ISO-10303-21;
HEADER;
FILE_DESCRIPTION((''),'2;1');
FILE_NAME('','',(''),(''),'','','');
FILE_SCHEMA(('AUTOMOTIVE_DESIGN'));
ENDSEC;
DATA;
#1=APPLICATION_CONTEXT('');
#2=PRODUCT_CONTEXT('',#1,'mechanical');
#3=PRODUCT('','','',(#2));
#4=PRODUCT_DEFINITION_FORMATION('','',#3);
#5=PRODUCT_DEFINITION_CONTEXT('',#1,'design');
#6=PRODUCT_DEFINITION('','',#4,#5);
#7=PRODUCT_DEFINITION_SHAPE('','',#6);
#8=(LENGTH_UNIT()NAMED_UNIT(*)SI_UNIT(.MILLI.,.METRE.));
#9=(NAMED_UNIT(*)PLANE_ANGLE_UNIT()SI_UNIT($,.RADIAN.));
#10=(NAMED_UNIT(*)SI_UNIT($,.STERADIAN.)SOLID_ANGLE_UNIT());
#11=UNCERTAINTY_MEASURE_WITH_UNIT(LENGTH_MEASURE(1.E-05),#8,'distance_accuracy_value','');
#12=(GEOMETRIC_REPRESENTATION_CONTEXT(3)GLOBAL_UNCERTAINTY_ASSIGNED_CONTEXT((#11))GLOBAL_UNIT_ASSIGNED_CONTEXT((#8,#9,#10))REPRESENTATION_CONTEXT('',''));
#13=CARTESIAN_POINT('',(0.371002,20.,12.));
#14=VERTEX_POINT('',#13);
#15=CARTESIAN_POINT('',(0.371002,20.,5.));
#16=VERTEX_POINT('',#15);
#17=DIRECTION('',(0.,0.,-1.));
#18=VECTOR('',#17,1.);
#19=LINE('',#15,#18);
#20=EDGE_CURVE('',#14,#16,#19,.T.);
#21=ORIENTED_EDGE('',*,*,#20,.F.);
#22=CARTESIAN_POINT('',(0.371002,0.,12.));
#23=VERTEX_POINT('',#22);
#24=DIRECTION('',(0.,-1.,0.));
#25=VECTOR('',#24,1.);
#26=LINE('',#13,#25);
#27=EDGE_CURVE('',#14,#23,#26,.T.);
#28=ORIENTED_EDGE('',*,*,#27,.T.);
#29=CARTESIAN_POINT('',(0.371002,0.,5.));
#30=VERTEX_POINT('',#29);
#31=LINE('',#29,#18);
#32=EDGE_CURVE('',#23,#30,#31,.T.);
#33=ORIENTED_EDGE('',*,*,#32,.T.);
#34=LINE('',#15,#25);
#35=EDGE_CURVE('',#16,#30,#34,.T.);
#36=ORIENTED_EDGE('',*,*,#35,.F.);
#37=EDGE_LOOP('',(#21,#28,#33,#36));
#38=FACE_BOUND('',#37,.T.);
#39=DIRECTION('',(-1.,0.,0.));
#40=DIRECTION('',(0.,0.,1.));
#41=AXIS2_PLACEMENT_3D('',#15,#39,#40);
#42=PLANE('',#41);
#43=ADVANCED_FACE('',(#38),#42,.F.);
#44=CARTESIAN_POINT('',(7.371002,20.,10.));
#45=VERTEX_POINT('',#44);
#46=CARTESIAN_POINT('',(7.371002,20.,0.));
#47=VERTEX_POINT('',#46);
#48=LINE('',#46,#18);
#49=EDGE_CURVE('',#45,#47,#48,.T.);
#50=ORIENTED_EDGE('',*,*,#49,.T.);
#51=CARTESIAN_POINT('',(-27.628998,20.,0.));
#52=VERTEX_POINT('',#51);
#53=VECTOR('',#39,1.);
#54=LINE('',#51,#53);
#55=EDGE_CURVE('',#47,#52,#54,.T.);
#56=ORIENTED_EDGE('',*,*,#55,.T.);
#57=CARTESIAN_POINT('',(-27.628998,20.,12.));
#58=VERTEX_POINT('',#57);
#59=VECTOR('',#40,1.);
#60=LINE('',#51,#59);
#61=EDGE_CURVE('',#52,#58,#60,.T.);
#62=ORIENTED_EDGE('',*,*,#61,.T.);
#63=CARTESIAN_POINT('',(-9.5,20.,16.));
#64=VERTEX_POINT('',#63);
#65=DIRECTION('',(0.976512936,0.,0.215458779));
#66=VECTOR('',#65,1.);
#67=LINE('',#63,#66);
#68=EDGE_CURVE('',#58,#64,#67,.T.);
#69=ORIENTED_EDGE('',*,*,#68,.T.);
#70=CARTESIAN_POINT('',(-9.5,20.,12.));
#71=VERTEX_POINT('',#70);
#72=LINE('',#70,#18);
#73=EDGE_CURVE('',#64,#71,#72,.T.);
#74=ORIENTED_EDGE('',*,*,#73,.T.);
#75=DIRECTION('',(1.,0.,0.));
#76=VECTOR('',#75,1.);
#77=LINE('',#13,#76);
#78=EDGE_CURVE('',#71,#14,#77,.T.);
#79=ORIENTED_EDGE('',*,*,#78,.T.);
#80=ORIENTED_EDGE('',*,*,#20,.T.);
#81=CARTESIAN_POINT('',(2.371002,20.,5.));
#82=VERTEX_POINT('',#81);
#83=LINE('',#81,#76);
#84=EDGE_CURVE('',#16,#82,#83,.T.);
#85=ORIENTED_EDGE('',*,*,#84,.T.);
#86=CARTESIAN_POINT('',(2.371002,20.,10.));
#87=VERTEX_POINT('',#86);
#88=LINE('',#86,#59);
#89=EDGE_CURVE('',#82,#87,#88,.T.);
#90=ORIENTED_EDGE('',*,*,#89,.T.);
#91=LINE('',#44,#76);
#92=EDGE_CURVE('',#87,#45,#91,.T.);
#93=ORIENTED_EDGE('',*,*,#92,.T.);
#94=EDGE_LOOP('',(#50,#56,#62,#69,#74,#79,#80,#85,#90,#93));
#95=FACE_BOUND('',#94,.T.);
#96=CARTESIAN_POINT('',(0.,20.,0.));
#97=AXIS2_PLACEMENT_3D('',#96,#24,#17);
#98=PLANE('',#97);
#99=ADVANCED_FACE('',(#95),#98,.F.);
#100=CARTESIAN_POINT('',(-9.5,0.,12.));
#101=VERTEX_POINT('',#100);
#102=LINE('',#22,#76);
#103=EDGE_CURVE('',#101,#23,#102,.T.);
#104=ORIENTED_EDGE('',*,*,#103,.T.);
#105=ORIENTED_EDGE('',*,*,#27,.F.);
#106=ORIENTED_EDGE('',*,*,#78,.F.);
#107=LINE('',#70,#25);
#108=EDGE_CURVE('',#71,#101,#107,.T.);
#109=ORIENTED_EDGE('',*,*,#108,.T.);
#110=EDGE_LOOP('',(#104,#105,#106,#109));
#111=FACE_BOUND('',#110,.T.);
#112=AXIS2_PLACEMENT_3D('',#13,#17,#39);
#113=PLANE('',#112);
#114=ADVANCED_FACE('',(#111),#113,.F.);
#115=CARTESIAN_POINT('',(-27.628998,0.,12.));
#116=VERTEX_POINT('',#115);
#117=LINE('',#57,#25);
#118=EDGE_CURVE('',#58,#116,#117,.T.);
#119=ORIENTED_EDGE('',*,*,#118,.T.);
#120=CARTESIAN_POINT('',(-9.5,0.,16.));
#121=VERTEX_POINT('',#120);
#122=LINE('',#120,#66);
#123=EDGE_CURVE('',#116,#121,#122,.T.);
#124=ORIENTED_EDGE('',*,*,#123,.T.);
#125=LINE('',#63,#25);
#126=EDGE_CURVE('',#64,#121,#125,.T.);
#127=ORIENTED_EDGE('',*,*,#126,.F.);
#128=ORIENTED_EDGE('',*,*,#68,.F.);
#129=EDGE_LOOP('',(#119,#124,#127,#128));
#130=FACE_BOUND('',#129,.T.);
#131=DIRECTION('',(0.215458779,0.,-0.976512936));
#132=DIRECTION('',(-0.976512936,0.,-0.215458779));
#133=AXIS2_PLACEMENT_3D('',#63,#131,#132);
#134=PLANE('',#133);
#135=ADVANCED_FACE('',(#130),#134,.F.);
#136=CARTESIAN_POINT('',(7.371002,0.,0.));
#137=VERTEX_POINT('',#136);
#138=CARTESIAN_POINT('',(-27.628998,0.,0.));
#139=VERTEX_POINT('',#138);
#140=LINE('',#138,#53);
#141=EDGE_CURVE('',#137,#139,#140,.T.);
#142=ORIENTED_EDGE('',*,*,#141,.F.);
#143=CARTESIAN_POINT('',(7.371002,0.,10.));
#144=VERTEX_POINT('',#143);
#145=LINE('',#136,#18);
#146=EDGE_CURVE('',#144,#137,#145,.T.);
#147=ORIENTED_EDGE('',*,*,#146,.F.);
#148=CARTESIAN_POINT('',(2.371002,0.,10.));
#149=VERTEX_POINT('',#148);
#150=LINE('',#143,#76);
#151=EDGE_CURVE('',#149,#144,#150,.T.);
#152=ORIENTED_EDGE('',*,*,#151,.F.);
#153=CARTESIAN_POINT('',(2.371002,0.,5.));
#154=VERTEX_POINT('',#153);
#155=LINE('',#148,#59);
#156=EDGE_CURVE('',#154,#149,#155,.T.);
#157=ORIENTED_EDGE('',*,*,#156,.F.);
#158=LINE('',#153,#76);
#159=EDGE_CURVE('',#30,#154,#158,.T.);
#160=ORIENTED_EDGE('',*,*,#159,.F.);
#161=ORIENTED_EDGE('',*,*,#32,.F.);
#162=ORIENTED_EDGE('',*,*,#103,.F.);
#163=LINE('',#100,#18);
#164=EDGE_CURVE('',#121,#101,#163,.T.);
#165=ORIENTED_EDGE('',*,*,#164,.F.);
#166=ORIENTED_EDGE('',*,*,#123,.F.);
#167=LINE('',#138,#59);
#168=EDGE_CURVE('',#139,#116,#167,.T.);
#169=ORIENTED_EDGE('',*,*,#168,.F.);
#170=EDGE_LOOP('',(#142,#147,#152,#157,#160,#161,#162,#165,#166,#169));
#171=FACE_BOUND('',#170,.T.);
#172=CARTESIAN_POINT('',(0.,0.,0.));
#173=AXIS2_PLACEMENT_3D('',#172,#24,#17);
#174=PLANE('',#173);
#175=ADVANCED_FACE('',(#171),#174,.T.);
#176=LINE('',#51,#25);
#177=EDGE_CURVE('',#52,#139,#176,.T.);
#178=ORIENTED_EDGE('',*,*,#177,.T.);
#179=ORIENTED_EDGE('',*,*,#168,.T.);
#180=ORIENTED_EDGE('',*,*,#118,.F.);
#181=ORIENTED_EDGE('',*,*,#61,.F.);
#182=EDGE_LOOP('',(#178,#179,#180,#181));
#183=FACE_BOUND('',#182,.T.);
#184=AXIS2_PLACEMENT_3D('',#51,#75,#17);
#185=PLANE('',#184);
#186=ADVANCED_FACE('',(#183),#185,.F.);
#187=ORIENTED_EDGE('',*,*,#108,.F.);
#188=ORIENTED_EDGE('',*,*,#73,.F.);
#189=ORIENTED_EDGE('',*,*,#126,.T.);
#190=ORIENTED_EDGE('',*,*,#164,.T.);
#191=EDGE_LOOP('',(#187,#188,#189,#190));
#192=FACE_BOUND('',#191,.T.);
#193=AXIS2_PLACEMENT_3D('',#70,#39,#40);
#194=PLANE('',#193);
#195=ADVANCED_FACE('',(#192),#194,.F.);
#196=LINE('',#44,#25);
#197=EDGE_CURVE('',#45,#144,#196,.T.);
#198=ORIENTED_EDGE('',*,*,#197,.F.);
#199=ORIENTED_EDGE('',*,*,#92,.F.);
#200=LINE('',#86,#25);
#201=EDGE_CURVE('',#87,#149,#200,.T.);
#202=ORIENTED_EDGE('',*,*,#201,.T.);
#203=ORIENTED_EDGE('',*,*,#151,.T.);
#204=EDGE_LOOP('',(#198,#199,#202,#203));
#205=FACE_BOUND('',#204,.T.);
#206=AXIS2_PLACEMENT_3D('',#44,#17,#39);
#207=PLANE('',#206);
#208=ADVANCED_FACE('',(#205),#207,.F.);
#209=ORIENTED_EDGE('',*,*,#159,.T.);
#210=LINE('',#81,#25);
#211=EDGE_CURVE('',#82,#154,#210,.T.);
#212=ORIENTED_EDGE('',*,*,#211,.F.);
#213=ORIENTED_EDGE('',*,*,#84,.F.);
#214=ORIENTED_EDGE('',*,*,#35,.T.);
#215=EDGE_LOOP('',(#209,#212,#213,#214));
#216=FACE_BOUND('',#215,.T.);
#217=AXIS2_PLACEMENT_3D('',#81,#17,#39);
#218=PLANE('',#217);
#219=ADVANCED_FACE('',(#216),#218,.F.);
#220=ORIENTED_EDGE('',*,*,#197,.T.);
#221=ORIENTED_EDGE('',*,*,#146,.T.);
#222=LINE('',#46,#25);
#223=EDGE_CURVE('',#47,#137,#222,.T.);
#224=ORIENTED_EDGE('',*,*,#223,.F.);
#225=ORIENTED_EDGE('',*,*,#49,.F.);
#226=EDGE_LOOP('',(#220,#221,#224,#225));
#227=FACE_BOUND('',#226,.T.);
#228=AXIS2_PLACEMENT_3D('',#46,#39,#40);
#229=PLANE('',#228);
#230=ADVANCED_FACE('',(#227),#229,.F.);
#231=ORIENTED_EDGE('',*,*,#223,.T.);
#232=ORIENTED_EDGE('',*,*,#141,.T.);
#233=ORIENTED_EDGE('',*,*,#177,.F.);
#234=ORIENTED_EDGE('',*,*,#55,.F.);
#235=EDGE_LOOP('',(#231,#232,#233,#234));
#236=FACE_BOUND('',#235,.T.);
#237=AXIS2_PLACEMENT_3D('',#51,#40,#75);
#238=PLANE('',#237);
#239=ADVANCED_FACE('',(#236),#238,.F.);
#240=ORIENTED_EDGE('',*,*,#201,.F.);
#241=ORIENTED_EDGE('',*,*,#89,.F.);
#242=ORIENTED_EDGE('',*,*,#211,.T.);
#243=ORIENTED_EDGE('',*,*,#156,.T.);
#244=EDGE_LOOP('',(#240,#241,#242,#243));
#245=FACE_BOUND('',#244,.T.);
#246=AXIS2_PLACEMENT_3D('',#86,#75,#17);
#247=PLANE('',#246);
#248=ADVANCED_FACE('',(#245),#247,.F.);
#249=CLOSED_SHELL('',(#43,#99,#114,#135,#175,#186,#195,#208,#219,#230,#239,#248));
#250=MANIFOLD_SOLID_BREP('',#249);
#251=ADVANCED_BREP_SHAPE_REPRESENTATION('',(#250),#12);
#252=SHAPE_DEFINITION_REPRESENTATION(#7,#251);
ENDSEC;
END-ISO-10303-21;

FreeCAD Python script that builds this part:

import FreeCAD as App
import Part
import Sketcher
from FreeCAD import Vector


def add_polygon(sketch, points):
    """Adds a closed chain of lines whose ends are joined by coincident constraints."""
    first, n = sketch.GeometryCount, len(points)
    for a, b in zip(points, points[1:] + points[:1]):
        sketch.addGeometry(Part.LineSegment(App.Vector(*a, 0), App.Vector(*b, 0)), False)
    for i in range(n):
        sketch.addConstraint(Sketcher.Constraint("Coincident", first + i, 2, first + (i + 1) % n, 1))

doc = App.newDocument("Part")
body = doc.addObject("PartDesign::Body", "Body")

sketch1 = body.newObject("Sketcher::SketchObject", "Sketch")
sketch1.AttachmentSupport = (doc.getObject("XZ_Plane"), [""])
sketch1.MapMode = "FlatFace"
add_polygon(sketch1, [(7.4, 0), (-27.6, 0), (-27.6, 12), (-9.5, 16), (-9.5, 12), (0.4, 12), (0.4, 5), (2.4, 5), (2.4, 10), (7.4, 10)])
sketch1.addConstraint([
    Sketcher.Constraint("Horizontal", 0),
    Sketcher.Constraint("Vertical", 1),
    Sketcher.Constraint("Vertical", 3),
    Sketcher.Constraint("Horizontal", 4),
    Sketcher.Constraint("Vertical", 5),
    Sketcher.Constraint("Horizontal", 6),
    Sketcher.Constraint("Vertical", 7),
    Sketcher.Constraint("Horizontal", 8),
    Sketcher.Constraint("Vertical", 9),
    Sketcher.Constraint("PointOnObject", 0, 2, -1),
    Sketcher.Constraint("Horizontal", 1, 2, 3, 2),
    Sketcher.Constraint("Equal", 8, 7),
    Sketcher.Constraint("DistanceX", 0, 2, 0, 1, 35.0),
    Sketcher.Constraint("DistanceX", 6, 1, 6, 2, 2.0),
    Sketcher.Constraint("DistanceX", 8, 1, 8, 2, 5.0),
    Sketcher.Constraint("DistanceY", 1, 1, 1, 2, 12.0),
    Sketcher.Constraint("DistanceY", 3, 2, 3, 1, 4.0),
    Sketcher.Constraint("DistanceY", 5, 2, 5, 1, 7.0),
    Sketcher.Constraint("DistanceX", 2, 2, -1, 1, 9.5),
    Sketcher.Constraint("DistanceX", 4, 1, 4, 2, 9.871002),
])
pad1 = body.newObject("PartDesign::Pad", "Pad")
pad1.Profile = sketch1
pad1.Length = 20
pad1.Reversed = True

doc.recompute()
